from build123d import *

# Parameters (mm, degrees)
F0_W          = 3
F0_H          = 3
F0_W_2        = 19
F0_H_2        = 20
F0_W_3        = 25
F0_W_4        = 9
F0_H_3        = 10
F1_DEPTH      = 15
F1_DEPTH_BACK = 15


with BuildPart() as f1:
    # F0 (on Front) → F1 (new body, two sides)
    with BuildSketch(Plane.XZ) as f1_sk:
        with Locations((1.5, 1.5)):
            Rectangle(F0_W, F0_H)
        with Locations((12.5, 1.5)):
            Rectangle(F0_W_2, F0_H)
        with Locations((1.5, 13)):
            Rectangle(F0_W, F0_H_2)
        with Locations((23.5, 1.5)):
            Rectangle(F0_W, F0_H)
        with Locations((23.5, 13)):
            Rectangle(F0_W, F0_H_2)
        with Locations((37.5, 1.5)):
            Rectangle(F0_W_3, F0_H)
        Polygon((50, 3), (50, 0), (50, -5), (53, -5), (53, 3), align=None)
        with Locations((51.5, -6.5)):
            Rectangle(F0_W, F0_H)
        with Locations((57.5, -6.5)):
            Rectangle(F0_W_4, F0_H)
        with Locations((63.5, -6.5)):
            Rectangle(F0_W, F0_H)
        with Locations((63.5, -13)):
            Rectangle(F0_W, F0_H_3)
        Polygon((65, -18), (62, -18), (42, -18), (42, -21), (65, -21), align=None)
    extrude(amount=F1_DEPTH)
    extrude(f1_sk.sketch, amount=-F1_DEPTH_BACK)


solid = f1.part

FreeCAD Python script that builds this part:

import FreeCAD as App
import Part
import Sketcher

V = App.Vector


def add_polygon(sketch, points):
    """Adds a closed chain of lines whose ends are joined by coincident constraints."""
    first, n = sketch.GeometryCount, len(points)
    for a, b in zip(points, points[1:] + points[:1]):
        sketch.addGeometry(Part.LineSegment(App.Vector(*a, 0), App.Vector(*b, 0)), False)
    for i in range(n):
        sketch.addConstraint(Sketcher.Constraint("Coincident", first + i, 2, first + (i + 1) % n, 1))

doc = App.newDocument("Part")
body = doc.addObject("PartDesign::Body", "Body")

# Sketch on XZ plane
sketch1 = doc.addObject("Sketcher::SketchObject", "Sketch")
body.addObject(sketch1)
sketch1.AttachmentSupport = (doc.XZ_Plane, [""])
sketch1.MapMode = "FlatFace"
add_polygon(sketch1, [(0, 0), (50, 0), (50, -8), (62, -8), (62, -18), (42, -18), (42, -21), (65, -21), (65, -5), (53, -5), (53, 3), (25, 3), (25, 23), (22, 23), (22, 3), (3, 3), (3, 23), (0, 23)])  # lines 0-17
sketch1.addConstraint([
    Sketcher.Constraint("Horizontal", 0),
    Sketcher.Constraint("Vertical", 1),
    Sketcher.Constraint("Horizontal", 2),
    Sketcher.Constraint("Vertical", 3),
    Sketcher.Constraint("Horizontal", 4),
    Sketcher.Constraint("Vertical", 5),
    Sketcher.Constraint("Horizontal", 6),
    Sketcher.Constraint("Vertical", 7),
    Sketcher.Constraint("Horizontal", 8),
    Sketcher.Constraint("Vertical", 9),
    Sketcher.Constraint("Horizontal", 10),
    Sketcher.Constraint("Vertical", 11),
    Sketcher.Constraint("Horizontal", 12),
    Sketcher.Constraint("Vertical", 13),
    Sketcher.Constraint("Horizontal", 14),
    Sketcher.Constraint("Vertical", 15),
    Sketcher.Constraint("Horizontal", 16),
    Sketcher.Constraint("Vertical", 17),
    Sketcher.Constraint("Coincident", 17, 2, -1, 1),
    Sketcher.Constraint("Horizontal", 10, 2, 13, 2),
    Sketcher.Constraint("Horizontal", 12, 2, 15, 2),
    Sketcher.Constraint("Equal", 2, 8),
    Sketcher.Constraint("Equal", 12, 16),
    Sketcher.Constraint("Equal", 16, 5),
    Sketcher.Constraint("Equal", 1, 9),
    Sketcher.Constraint("Equal", 4, 11),
    Sketcher.Constraint("Equal", 6, 17),
    Sketcher.Constraint("DistanceX", 0, 1, 0, 2, 50.0),
    Sketcher.Constraint("DistanceX", 2, 1, 2, 2, 12.0),
    Sketcher.Constraint("DistanceX", 4, 2, 4, 1, 20.0),
    Sketcher.Constraint("DistanceX", 6, 1, 6, 2, 23.0),
    Sketcher.Constraint("DistanceX", 10, 2, 10, 1, 28.0),
    Sketcher.Constraint("DistanceX", 12, 2, 12, 1, 3.0),
    Sketcher.Constraint("DistanceY", 1, 2, 1, 1, 8.0),
    Sketcher.Constraint("DistanceY", 3, 2, 3, 1, 10.0),
])
pad1 = doc.addObject("PartDesign::Pad", "Pad")
body.addObject(pad1)
pad1.Profile = sketch1
pad1.Type = "TwoLengths"
pad1.Length = 15
pad1.Length2 = 15

doc.recompute()
